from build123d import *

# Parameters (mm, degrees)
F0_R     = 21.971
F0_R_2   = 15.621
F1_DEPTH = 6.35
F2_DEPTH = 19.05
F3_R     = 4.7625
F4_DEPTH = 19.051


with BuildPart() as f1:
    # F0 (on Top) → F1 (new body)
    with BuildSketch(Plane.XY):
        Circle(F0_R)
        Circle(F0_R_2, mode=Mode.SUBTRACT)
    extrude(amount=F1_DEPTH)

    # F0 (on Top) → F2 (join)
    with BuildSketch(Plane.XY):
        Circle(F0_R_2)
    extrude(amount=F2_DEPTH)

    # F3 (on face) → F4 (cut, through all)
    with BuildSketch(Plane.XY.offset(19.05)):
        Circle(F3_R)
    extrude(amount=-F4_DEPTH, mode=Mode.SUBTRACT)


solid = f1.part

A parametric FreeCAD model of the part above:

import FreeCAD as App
import Part
import Sketcher
Q = App.Units.Quantity

doc = App.newDocument("Part")
body = doc.addObject("PartDesign::Body", "Body")

# Sketch on XY plane
sketch1 = body.newObject("Sketcher::SketchObject", "Sketch")
sketch1.AttachmentSupport = (doc.getObject("XY_Plane"), [""])
sketch1.MapMode = "FlatFace"
sketch1.addGeometry(Part.Circle(App.Vector(0, 0, 0), App.Vector(0, 0, 1), 22), False)
sketch1.addGeometry(Part.Circle(App.Vector(0, 0, 0), App.Vector(0, 0, 1), 16), False)
sketch1.addConstraint(Sketcher.Constraint("Coincident", 0, 3, -1, 1))
sketch1.addConstraint(Sketcher.Constraint("Coincident", 1, 3, -1, 1))
sketch1.addConstraint(Sketcher.Constraint("Diameter", 0, Q("1.73 in")))
sketch1.addConstraint(Sketcher.Constraint("Diameter", 1, Q("1.23 in")))
pad1 = body.newObject("PartDesign::Pad", "Pad")
pad1.Profile = sketch1
pad1.Length = Q("0.25 in")

# Sketch on XY plane
sketch2 = body.newObject("Sketcher::SketchObject", "Sketch001")
sketch2.AttachmentSupport = (doc.getObject("XY_Plane"), [""])
sketch2.MapMode = "FlatFace"
sketch2.addGeometry(Part.Circle(App.Vector(0, 0, 0), App.Vector(0, 0, 1), 16), False)
sketch2.addConstraint(Sketcher.Constraint("Coincident", 0, 3, -1, 1))
sketch2.addConstraint(Sketcher.Constraint("Diameter", 0, Q("1.23 in")))
pad2 = body.newObject("PartDesign::Pad", "Pad001")
pad2.Profile = sketch2
pad2.Length = Q("0.75 in")

# Sketch on XY plane
sketch3 = body.newObject("Sketcher::SketchObject", "Sketch002")
sketch3.AttachmentSupport = (doc.getObject("XY_Plane"), [""])
sketch3.MapMode = "FlatFace"
sketch3.AttachmentOffset = App.Placement(App.Vector(0, 0, 0.75 * 25.4), App.Rotation())
sketch3.addGeometry(Part.Circle(App.Vector(0, 0, 0), App.Vector(0, 0, 1), 4.8), False)
sketch3.addConstraint(Sketcher.Constraint("Coincident", 0, 3, -1, 1))
sketch3.addConstraint(Sketcher.Constraint("Diameter", 0, Q("0.375 in")))
pocket1 = body.newObject("PartDesign::Pocket", "Pocket")
pocket1.Profile = sketch3
pocket1.Type = "ThroughAll"

doc.recompute()
